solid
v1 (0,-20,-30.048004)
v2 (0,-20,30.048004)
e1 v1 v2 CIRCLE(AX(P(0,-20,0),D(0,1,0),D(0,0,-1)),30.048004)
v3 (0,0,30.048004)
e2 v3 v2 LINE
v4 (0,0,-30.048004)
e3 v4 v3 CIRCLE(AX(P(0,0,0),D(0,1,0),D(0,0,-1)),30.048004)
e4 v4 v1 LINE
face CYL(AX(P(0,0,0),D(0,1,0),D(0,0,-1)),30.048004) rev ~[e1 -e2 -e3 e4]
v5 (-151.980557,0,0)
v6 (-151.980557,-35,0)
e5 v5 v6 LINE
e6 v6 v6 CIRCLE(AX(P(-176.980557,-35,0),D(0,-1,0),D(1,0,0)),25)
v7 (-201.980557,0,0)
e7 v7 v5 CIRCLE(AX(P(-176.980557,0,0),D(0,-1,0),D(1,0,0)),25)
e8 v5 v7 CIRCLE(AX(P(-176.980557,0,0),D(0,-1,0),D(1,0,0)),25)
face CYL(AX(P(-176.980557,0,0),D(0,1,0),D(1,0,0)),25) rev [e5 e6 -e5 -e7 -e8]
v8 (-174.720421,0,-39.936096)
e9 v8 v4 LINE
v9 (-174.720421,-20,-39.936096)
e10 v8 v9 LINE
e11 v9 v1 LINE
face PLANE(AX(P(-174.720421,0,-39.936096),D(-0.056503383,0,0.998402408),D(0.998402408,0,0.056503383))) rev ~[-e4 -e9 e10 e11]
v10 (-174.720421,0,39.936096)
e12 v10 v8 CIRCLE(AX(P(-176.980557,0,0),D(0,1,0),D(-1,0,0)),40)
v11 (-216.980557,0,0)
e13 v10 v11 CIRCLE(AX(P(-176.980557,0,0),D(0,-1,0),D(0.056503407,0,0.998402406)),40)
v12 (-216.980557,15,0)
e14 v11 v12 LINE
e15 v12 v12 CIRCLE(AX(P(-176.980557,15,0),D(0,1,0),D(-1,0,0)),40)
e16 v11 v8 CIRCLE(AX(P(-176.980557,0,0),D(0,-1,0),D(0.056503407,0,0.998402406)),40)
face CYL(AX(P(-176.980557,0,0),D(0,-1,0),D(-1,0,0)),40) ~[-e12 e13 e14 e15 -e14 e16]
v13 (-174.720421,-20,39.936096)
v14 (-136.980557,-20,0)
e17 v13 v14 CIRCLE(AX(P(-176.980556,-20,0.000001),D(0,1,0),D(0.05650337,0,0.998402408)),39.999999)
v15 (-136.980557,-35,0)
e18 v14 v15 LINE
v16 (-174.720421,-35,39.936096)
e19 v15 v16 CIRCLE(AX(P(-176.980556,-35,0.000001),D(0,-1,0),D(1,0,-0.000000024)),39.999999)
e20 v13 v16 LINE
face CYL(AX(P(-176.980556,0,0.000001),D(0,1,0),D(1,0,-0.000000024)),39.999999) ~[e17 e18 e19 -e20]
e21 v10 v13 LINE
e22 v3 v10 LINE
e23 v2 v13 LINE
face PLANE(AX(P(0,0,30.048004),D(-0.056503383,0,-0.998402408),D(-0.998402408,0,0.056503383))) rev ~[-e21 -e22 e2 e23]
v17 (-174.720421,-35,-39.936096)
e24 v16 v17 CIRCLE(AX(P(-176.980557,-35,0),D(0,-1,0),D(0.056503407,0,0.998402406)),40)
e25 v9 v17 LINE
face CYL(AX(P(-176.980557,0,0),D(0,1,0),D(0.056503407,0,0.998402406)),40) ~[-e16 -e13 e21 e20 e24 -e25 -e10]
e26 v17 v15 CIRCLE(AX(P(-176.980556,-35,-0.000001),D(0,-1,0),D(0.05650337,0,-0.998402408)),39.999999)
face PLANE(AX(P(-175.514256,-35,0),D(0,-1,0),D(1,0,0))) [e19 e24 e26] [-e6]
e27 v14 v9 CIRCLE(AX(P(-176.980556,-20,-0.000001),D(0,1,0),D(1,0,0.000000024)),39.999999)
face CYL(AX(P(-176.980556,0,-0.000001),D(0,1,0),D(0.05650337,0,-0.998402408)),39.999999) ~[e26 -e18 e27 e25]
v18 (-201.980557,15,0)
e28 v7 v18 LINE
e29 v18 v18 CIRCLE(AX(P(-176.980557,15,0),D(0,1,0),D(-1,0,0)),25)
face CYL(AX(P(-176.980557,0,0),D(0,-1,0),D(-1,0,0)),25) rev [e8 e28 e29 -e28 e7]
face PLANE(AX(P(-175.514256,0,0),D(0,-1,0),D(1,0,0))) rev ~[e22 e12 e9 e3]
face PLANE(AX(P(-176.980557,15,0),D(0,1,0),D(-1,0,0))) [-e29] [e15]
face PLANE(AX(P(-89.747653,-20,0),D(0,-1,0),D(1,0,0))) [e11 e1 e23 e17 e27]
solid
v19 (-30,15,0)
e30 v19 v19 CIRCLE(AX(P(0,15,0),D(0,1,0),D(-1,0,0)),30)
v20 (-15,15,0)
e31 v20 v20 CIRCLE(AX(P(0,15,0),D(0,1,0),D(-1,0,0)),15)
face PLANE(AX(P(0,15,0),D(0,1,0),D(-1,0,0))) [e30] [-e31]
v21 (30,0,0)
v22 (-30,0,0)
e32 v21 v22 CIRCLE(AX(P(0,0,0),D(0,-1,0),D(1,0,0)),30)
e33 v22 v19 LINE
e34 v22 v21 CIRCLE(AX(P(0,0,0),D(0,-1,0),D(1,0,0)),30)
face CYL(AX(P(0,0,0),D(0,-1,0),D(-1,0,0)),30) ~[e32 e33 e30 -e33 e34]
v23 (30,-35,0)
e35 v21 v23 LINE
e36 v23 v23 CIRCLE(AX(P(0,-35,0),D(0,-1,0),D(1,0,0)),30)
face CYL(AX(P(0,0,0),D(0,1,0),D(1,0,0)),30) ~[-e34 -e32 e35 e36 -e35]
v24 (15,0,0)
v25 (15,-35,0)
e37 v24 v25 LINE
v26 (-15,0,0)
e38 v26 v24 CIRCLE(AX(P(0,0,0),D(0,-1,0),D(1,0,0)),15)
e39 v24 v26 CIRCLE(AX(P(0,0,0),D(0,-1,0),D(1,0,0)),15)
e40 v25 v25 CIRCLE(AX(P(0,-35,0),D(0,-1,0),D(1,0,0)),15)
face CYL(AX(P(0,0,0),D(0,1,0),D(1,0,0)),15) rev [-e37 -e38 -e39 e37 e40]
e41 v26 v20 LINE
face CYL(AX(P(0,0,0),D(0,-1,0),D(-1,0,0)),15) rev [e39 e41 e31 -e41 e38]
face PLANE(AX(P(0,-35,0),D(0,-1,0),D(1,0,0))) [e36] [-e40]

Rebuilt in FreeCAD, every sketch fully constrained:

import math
import FreeCAD as App
import Part
import Sketcher
from FreeCAD import Vector
Q = App.Units.Quantity

doc = App.newDocument("Part")
body = doc.addObject("PartDesign::Body", "Body")
body.AllowCompound = True

sketch1 = body.newObject("Sketcher::SketchObject", "Sketch")
sketch1.AttachmentSupport = (doc.getObject("XZ_Plane"), [""])
sketch1.MapMode = "FlatFace"
sketch1.addGeometry(Part.ArcOfCircle(Part.Circle(Vector(-177, 0, 0), Vector(0, 0, 1), 40), math.radians(0), math.radians(87)), False)
sketch1.addGeometry(Part.ArcOfCircle(Part.Circle(Vector(-177, 0, 0), Vector(0, 0, 1), 40), math.radians(-87), math.radians(0)), False)
sketch1.addGeometry(Part.LineSegment(Vector(-175, -40, 0), Vector(0, -30, 0)), False)
sketch1.addGeometry(Part.ArcOfCircle(Part.Circle(Vector(0, 0, 0), Vector(0, 0, 1), 30), math.radians(90), math.radians(270)), False)
sketch1.addGeometry(Part.LineSegment(Vector(0, 30, 0), Vector(-175, 40, 0)), False)
sketch1.addConstraint(Sketcher.Constraint("Tangent", 0, 1, 1, 2))
sketch1.addConstraint(Sketcher.Constraint("Tangent", 1, 1, 2, 1))
sketch1.addConstraint(Sketcher.Constraint("Coincident", 2, 2, 3, 2))
sketch1.addConstraint(Sketcher.Constraint("Coincident", 3, 1, 4, 1))
sketch1.addConstraint(Sketcher.Constraint("Tangent", 4, 2, 0, 2))
sketch1.addConstraint(Sketcher.Constraint("Coincident", 3, 3, -1, 1))
sketch1.addConstraint(Sketcher.Constraint("Equal", 0, 1))
sketch1.addConstraint(Sketcher.Constraint("Symmetric", 1, 1, 4, 2, -1))
sketch1.addConstraint(Sketcher.Constraint("PointOnObject", 0, 1, -1))
sketch1.addConstraint(Sketcher.Constraint("PointOnObject", 2, 2, -2))
sketch1.addConstraint(Sketcher.Constraint("Radius", 0, Q("39.999999 mm")))
sketch1.addConstraint(Sketcher.Constraint("Distance", 2, Q("175 mm")))
sketch1.addConstraint(Sketcher.Constraint("Radius", 3, Q("30.048004 mm")))
pad1 = body.newObject("PartDesign::Pad", "Pad")
pad1.Profile = sketch1
pad1.Length = 20

sketch2 = body.newObject("Sketcher::SketchObject", "Sketch001")
sketch2.AttachmentSupport = (doc.getObject("XZ_Plane"), [""])
sketch2.MapMode = "FlatFace"
sketch2.addGeometry(Part.ArcOfCircle(Part.Circle(Vector(-177, 0, 0), Vector(0, 0, 1), 40), math.radians(-87), math.radians(0)), False)
sketch2.addGeometry(Part.ArcOfCircle(Part.Circle(Vector(-177, 0, 0), Vector(0, 0, 1), 40), math.radians(0), math.radians(87)), False)
sketch2.addGeometry(Part.ArcOfCircle(Part.Circle(Vector(-177, 0, 0), Vector(0, 0, 1), 40), math.radians(87), math.radians(273)), False)
sketch2.addGeometry(Part.Circle(Vector(-177, 0, 0), Vector(0, 0, 1), 25), False)
sketch2.addGeometry(Part.Circle(Vector(0, 0, 0), Vector(0, 0, 1), 30), False)
sketch2.addGeometry(Part.Circle(Vector(0, 0, 0), Vector(0, 0, 1), 15), False)
sketch2.addConstraint(Sketcher.Constraint("Tangent", 0, 2, 1, 1))
sketch2.addConstraint(Sketcher.Constraint("Tangent", 1, 2, 2, 1))
sketch2.addConstraint(Sketcher.Constraint("Tangent", 2, 2, 0, 1))
sketch2.addConstraint(Sketcher.Constraint("Coincident", 4, 3, -1, 1))
sketch2.addConstraint(Sketcher.Constraint("Coincident", 5, 3, -1, 1))
sketch2.addConstraint(Sketcher.Constraint("Coincident", 3, 3, 0, 3))
sketch2.addConstraint(Sketcher.Constraint("Symmetric", 1, 2, 2, 2, -1))
sketch2.addConstraint(Sketcher.Constraint("PointOnObject", 0, 2, -1))
sketch2.addConstraint(Sketcher.Constraint("Diameter", 3, Q("50 mm")))
sketch2.addConstraint(Sketcher.Constraint("Diameter", 4, Q("60 mm")))
sketch2.addConstraint(Sketcher.Constraint("Diameter", 5, Q("30 mm")))
sketch2.addConstraint(Sketcher.Constraint("Radius", 0, Q("39.999999 mm")))
sketch2.addConstraint(Sketcher.Constraint("DistanceX", 1, 2, -1, 1, Q("174.720421 mm")))
sketch2.addConstraint(Sketcher.Constraint("DistanceX", 0, 3, -1, 1, Q("176.980556 mm")))
pad2 = body.newObject("PartDesign::Pad", "Pad001")
pad2.Profile = sketch2
pad2.Length = 35

sketch3 = body.newObject("Sketcher::SketchObject", "Sketch002")
sketch3.AttachmentSupport = (doc.getObject("XZ_Plane"), [""])
sketch3.MapMode = "FlatFace"
sketch3.addGeometry(Part.Circle(Vector(0, 0, 0), Vector(0, 0, 1), 30), False)
sketch3.addGeometry(Part.Circle(Vector(0, 0, 0), Vector(0, 0, 1), 15), False)
sketch3.addConstraint(Sketcher.Constraint("Coincident", 0, 3, -1, 1))
sketch3.addConstraint(Sketcher.Constraint("Coincident", 1, 3, -1, 1))
sketch3.addConstraint(Sketcher.Constraint("Diameter", 0, Q("60 mm")))
sketch3.addConstraint(Sketcher.Constraint("Diameter", 1, Q("30 mm")))
pad3 = body.newObject("PartDesign::Pad", "Pad002")
pad3.Profile = sketch3
pad3.Length = 15
pad3.Reversed = True

sketch4 = body.newObject("Sketcher::SketchObject", "Sketch003")
sketch4.AttachmentSupport = (doc.getObject("XZ_Plane"), [""])
sketch4.MapMode = "FlatFace"
sketch4.addGeometry(Part.Circle(Vector(-177, 0, 0), Vector(0, 0, 1), 40), False)
sketch4.addGeometry(Part.Circle(Vector(-177, 0, 0), Vector(0, 0, 1), 25), False)
sketch4.addConstraint(Sketcher.Constraint("Coincident", 1, 3, 0, 3))
sketch4.addConstraint(Sketcher.Constraint("PointOnObject", 0, 3, -1))
sketch4.addConstraint(Sketcher.Constraint("Diameter", 0, Q("80 mm")))
sketch4.addConstraint(Sketcher.Constraint("Diameter", 1, Q("50 mm")))
sketch4.addConstraint(Sketcher.Constraint("DistanceX", 0, 3, -1, 1, Q("176.980557 mm")))
pad4 = body.newObject("PartDesign::Pad", "Pad003")
pad4.Profile = sketch4
pad4.Length = 15
pad4.Reversed = True

doc.recompute()
